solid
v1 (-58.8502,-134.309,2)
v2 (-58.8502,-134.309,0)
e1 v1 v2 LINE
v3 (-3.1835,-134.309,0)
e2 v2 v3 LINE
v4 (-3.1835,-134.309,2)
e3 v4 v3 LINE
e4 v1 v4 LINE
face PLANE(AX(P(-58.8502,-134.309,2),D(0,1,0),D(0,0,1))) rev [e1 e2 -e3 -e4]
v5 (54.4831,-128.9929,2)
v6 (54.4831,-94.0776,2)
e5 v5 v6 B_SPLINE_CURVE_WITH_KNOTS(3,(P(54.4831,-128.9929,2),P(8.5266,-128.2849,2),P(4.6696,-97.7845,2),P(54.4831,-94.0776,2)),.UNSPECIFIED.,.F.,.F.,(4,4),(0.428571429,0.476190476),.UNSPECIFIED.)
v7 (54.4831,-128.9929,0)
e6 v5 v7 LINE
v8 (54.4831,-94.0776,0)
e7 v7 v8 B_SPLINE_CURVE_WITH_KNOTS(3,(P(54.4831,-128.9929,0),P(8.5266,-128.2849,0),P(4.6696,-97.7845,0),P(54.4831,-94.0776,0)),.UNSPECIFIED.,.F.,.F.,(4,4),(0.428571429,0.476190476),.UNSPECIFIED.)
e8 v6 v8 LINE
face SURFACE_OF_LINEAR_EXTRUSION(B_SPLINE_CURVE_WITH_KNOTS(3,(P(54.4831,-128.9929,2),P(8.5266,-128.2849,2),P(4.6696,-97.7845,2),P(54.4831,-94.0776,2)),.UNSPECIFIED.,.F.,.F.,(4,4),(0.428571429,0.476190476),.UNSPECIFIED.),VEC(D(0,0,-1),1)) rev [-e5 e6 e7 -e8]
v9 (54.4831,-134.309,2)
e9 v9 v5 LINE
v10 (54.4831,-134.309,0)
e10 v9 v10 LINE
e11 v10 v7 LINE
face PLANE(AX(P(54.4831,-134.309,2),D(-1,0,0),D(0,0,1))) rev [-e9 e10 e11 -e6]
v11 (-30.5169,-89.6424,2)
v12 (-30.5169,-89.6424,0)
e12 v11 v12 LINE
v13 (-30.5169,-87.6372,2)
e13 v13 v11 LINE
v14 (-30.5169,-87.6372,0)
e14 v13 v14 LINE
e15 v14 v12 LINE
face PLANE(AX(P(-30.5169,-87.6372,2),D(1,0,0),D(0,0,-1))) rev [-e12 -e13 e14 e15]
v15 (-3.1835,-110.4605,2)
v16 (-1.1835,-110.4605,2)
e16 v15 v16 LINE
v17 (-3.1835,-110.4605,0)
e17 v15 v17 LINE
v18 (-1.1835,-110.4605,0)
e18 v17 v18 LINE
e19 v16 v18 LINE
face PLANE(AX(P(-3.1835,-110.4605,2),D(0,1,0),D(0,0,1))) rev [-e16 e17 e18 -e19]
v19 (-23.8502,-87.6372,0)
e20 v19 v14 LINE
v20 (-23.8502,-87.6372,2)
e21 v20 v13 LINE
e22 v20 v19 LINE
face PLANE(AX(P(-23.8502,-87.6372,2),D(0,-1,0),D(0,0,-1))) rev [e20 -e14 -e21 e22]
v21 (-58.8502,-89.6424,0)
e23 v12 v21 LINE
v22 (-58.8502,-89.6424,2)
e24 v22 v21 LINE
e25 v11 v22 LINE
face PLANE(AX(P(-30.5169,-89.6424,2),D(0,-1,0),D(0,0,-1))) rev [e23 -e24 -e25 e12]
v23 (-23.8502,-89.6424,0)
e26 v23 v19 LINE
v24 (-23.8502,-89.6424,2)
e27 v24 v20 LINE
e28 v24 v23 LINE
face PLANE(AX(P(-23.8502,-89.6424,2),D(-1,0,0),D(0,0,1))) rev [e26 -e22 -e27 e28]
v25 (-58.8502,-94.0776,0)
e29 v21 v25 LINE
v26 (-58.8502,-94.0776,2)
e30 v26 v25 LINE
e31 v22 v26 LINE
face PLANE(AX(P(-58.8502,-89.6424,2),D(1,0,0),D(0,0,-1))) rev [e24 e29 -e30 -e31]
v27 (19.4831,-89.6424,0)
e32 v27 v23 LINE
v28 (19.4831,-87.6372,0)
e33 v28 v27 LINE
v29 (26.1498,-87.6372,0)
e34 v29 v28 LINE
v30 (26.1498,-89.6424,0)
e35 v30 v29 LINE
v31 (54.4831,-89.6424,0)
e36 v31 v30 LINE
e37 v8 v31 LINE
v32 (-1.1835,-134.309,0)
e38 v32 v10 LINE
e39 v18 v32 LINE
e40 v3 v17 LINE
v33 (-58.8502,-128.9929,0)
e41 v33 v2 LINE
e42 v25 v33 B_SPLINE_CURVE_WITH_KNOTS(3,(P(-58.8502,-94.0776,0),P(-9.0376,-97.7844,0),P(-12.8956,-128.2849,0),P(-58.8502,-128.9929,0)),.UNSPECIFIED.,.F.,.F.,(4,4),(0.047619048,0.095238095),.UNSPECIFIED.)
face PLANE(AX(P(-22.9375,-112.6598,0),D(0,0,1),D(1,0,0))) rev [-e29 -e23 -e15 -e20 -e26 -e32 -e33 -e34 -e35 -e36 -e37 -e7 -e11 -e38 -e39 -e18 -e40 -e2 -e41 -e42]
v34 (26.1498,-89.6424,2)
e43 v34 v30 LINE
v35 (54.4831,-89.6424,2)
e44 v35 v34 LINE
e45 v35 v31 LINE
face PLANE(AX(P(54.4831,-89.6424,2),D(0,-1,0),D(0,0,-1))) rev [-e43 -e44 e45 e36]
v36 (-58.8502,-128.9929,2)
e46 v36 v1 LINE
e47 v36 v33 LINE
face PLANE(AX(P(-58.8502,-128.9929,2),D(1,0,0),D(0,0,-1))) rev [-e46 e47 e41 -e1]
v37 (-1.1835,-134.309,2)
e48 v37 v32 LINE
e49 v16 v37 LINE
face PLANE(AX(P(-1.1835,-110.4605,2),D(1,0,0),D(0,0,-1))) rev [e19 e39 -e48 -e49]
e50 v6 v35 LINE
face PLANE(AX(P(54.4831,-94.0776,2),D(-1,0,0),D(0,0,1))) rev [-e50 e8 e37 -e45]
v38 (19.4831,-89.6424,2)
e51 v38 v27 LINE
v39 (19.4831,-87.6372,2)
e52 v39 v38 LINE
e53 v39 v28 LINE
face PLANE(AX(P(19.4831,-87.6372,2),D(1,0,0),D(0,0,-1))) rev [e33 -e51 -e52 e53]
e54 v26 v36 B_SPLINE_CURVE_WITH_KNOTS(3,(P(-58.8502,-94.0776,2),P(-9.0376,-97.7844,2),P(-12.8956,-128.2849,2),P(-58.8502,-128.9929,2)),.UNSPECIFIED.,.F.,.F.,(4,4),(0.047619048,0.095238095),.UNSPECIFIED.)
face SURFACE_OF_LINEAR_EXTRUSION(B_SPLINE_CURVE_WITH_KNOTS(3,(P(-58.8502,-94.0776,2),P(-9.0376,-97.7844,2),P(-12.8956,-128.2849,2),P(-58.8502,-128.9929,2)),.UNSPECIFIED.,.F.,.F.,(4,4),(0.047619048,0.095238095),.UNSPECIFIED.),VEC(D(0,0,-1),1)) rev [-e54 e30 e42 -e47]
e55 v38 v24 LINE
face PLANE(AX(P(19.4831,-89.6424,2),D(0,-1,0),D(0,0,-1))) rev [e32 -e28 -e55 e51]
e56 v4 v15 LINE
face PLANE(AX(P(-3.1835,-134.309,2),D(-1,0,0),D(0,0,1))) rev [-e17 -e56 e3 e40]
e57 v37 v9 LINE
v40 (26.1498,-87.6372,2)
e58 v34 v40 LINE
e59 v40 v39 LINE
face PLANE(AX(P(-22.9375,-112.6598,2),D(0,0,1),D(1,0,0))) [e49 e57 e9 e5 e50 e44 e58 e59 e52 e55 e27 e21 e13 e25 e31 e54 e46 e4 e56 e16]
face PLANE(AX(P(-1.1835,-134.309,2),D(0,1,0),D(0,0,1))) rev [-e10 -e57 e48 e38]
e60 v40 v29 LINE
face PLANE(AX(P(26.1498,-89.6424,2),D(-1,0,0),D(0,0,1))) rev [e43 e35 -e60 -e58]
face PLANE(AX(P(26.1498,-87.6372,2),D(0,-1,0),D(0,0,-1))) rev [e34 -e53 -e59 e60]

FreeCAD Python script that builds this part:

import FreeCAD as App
import Part
import Sketcher
from FreeCAD import Vector
Q = App.Units.Quantity

doc = App.newDocument("Part")
body = doc.addObject("PartDesign::Body", "Body")

# Sketch on XY plane
sketch1 = body.newObject("Sketcher::SketchObject", "Sketch")
sketch1.AttachmentSupport = (doc.getObject("XY_Plane"), [""])
sketch1.MapMode = "FlatFace"
sketch1.addGeometry(Part.LineSegment(Vector(-58.8502, -89.6424, 0), Vector(-58.8502, -94.0776, 0)), False)
sketch1.addGeometry(Part.BSplineCurve([Vector(-58.8502, -94.0776, 0), Vector(-9.0376, -97.7844, 0), Vector(-12.8956, -128.2849, 0), Vector(-58.8502, -128.9929, 0)], [4, 4], [0.047619048, 0.095238095], False, 3, [1, 1, 1, 1], False), False)
sketch1.addGeometry(Part.LineSegment(Vector(-58.8502, -128.9929, 0), Vector(-58.8502, -134.309, 0)), False)
sketch1.addGeometry(Part.LineSegment(Vector(-58.8502, -134.309, 0), Vector(-3.1835, -134.309, 0)), False)
sketch1.addGeometry(Part.LineSegment(Vector(-3.1835, -134.309, 0), Vector(-3.1835, -110.4605, 0)), False)
sketch1.addGeometry(Part.LineSegment(Vector(-3.1835, -110.4605, 0), Vector(-1.1835, -110.4605, 0)), False)
sketch1.addGeometry(Part.LineSegment(Vector(-1.1835, -110.4605, 0), Vector(-1.1835, -134.309, 0)), False)
sketch1.addGeometry(Part.LineSegment(Vector(-1.1835, -134.309, 0), Vector(54.4831, -134.309, 0)), False)
sketch1.addGeometry(Part.LineSegment(Vector(54.4831, -134.309, 0), Vector(54.4831, -128.9929, 0)), False)
sketch1.addGeometry(Part.BSplineCurve([Vector(54.4831, -128.9929, 0), Vector(8.5266, -128.2849, 0), Vector(4.6696, -97.7845, 0), Vector(54.4831, -94.0776, 0)], [4, 4], [0.428571429, 0.476190476], False, 3, [1, 1, 1, 1], False), False)
sketch1.addGeometry(Part.LineSegment(Vector(54.4831, -94.0776, 0), Vector(54.4831, -89.6424, 0)), False)
sketch1.addGeometry(Part.LineSegment(Vector(54.4831, -89.6424, 0), Vector(26.1498, -89.6424, 0)), False)
sketch1.addGeometry(Part.LineSegment(Vector(26.1498, -89.6424, 0), Vector(26.1498, -87.6372, 0)), False)
sketch1.addGeometry(Part.LineSegment(Vector(26.1498, -87.6372, 0), Vector(19.4831, -87.6372, 0)), False)
sketch1.addGeometry(Part.LineSegment(Vector(19.4831, -87.6372, 0), Vector(19.4831, -89.6424, 0)), False)
sketch1.addGeometry(Part.LineSegment(Vector(19.4831, -89.6424, 0), Vector(-23.8502, -89.6424, 0)), False)
sketch1.addGeometry(Part.LineSegment(Vector(-23.8502, -89.6424, 0), Vector(-23.8502, -87.6372, 0)), False)
sketch1.addGeometry(Part.LineSegment(Vector(-23.8502, -87.6372, 0), Vector(-30.5169, -87.6372, 0)), False)
sketch1.addGeometry(Part.LineSegment(Vector(-30.5169, -87.6372, 0), Vector(-30.5169, -89.6424, 0)), False)
sketch1.addGeometry(Part.LineSegment(Vector(-30.5169, -89.6424, 0), Vector(-58.8502, -89.6424, 0)), False)
sketch1.addConstraint(Sketcher.Constraint("Block", 1))
sketch1.addConstraint(Sketcher.Constraint("Block", 9))
sketch1.addConstraint(Sketcher.Constraint("Coincident", 0, 2, 1, 1))
sketch1.addConstraint(Sketcher.Constraint("Coincident", 1, 2, 2, 1))
sketch1.addConstraint(Sketcher.Constraint("Coincident", 2, 2, 3, 1))
sketch1.addConstraint(Sketcher.Constraint("Coincident", 3, 2, 4, 1))
sketch1.addConstraint(Sketcher.Constraint("Coincident", 4, 2, 5, 1))
sketch1.addConstraint(Sketcher.Constraint("Coincident", 5, 2, 6, 1))
sketch1.addConstraint(Sketcher.Constraint("Coincident", 6, 2, 7, 1))
sketch1.addConstraint(Sketcher.Constraint("Coincident", 7, 2, 8, 1))
sketch1.addConstraint(Sketcher.Constraint("Coincident", 8, 2, 9, 1))
sketch1.addConstraint(Sketcher.Constraint("Coincident", 9, 2, 10, 1))
sketch1.addConstraint(Sketcher.Constraint("Coincident", 10, 2, 11, 1))
sketch1.addConstraint(Sketcher.Constraint("Coincident", 11, 2, 12, 1))
sketch1.addConstraint(Sketcher.Constraint("Coincident", 12, 2, 13, 1))
sketch1.addConstraint(Sketcher.Constraint("Coincident", 13, 2, 14, 1))
sketch1.addConstraint(Sketcher.Constraint("Coincident", 14, 2, 15, 1))
sketch1.addConstraint(Sketcher.Constraint("Coincident", 15, 2, 16, 1))
sketch1.addConstraint(Sketcher.Constraint("Coincident", 16, 2, 17, 1))
sketch1.addConstraint(Sketcher.Constraint("Coincident", 17, 2, 18, 1))
sketch1.addConstraint(Sketcher.Constraint("Coincident", 18, 2, 19, 1))
sketch1.addConstraint(Sketcher.Constraint("Coincident", 19, 2, 0, 1))
sketch1.addConstraint(Sketcher.Constraint("Vertical", 0))
sketch1.addConstraint(Sketcher.Constraint("Vertical", 2))
sketch1.addConstraint(Sketcher.Constraint("Horizontal", 3))
sketch1.addConstraint(Sketcher.Constraint("Vertical", 4))
sketch1.addConstraint(Sketcher.Constraint("Horizontal", 5))
sketch1.addConstraint(Sketcher.Constraint("Vertical", 6))
sketch1.addConstraint(Sketcher.Constraint("Horizontal", 7))
sketch1.addConstraint(Sketcher.Constraint("Vertical", 8))
sketch1.addConstraint(Sketcher.Constraint("Vertical", 10))
sketch1.addConstraint(Sketcher.Constraint("Horizontal", 11))
sketch1.addConstraint(Sketcher.Constraint("Vertical", 12))
sketch1.addConstraint(Sketcher.Constraint("Horizontal", 13))
sketch1.addConstraint(Sketcher.Constraint("Vertical", 14))
sketch1.addConstraint(Sketcher.Constraint("Horizontal", 15))
sketch1.addConstraint(Sketcher.Constraint("Vertical", 16))
sketch1.addConstraint(Sketcher.Constraint("Horizontal", 17))
sketch1.addConstraint(Sketcher.Constraint("Vertical", 18))
sketch1.addConstraint(Sketcher.Constraint("Horizontal", 19))
sketch1.addConstraint(Sketcher.Constraint("Horizontal", 3, 2, 6, 2))
sketch1.addConstraint(Sketcher.Constraint("Horizontal", 11, 2, 14, 2))
sketch1.addConstraint(Sketcher.Constraint("Horizontal", 13, 2, 16, 2))
sketch1.addConstraint(Sketcher.Constraint("Horizontal", 15, 2, 18, 2))
sketch1.addConstraint(Sketcher.Constraint("Equal", 13, 17))
sketch1.addConstraint(Sketcher.Constraint("Equal", 11, 19))
sketch1.addConstraint(Sketcher.Constraint("DistanceX", 5, 1, 5, 2, Q("2 mm")))
sketch1.addConstraint(Sketcher.Constraint("DistanceX", 13, 2, 10, 2, Q("35 mm")))
sketch1.addConstraint(Sketcher.Constraint("DistanceX", 3, 1, 3, 2, Q("55.6667 mm")))
sketch1.addConstraint(Sketcher.Constraint("DistanceX", 11, 2, 11, 1, Q("28.3333 mm")))
sketch1.addConstraint(Sketcher.Constraint("DistanceY", 0, 2, 0, 1, Q("4.4352 mm")))
sketch1.addConstraint(Sketcher.Constraint("DistanceY", 2, 2, 2, 1, Q("5.3161 mm")))
sketch1.addConstraint(Sketcher.Constraint("DistanceY", 4, 1, 4, 2, Q("23.8485 mm")))
sketch1.addConstraint(Sketcher.Constraint("DistanceY", 12, 1, 12, 2, Q("2.0052 mm")))
pad1 = body.newObject("PartDesign::Pad", "Pad")
pad1.Profile = sketch1
pad1.Length = 2

doc.recompute()
